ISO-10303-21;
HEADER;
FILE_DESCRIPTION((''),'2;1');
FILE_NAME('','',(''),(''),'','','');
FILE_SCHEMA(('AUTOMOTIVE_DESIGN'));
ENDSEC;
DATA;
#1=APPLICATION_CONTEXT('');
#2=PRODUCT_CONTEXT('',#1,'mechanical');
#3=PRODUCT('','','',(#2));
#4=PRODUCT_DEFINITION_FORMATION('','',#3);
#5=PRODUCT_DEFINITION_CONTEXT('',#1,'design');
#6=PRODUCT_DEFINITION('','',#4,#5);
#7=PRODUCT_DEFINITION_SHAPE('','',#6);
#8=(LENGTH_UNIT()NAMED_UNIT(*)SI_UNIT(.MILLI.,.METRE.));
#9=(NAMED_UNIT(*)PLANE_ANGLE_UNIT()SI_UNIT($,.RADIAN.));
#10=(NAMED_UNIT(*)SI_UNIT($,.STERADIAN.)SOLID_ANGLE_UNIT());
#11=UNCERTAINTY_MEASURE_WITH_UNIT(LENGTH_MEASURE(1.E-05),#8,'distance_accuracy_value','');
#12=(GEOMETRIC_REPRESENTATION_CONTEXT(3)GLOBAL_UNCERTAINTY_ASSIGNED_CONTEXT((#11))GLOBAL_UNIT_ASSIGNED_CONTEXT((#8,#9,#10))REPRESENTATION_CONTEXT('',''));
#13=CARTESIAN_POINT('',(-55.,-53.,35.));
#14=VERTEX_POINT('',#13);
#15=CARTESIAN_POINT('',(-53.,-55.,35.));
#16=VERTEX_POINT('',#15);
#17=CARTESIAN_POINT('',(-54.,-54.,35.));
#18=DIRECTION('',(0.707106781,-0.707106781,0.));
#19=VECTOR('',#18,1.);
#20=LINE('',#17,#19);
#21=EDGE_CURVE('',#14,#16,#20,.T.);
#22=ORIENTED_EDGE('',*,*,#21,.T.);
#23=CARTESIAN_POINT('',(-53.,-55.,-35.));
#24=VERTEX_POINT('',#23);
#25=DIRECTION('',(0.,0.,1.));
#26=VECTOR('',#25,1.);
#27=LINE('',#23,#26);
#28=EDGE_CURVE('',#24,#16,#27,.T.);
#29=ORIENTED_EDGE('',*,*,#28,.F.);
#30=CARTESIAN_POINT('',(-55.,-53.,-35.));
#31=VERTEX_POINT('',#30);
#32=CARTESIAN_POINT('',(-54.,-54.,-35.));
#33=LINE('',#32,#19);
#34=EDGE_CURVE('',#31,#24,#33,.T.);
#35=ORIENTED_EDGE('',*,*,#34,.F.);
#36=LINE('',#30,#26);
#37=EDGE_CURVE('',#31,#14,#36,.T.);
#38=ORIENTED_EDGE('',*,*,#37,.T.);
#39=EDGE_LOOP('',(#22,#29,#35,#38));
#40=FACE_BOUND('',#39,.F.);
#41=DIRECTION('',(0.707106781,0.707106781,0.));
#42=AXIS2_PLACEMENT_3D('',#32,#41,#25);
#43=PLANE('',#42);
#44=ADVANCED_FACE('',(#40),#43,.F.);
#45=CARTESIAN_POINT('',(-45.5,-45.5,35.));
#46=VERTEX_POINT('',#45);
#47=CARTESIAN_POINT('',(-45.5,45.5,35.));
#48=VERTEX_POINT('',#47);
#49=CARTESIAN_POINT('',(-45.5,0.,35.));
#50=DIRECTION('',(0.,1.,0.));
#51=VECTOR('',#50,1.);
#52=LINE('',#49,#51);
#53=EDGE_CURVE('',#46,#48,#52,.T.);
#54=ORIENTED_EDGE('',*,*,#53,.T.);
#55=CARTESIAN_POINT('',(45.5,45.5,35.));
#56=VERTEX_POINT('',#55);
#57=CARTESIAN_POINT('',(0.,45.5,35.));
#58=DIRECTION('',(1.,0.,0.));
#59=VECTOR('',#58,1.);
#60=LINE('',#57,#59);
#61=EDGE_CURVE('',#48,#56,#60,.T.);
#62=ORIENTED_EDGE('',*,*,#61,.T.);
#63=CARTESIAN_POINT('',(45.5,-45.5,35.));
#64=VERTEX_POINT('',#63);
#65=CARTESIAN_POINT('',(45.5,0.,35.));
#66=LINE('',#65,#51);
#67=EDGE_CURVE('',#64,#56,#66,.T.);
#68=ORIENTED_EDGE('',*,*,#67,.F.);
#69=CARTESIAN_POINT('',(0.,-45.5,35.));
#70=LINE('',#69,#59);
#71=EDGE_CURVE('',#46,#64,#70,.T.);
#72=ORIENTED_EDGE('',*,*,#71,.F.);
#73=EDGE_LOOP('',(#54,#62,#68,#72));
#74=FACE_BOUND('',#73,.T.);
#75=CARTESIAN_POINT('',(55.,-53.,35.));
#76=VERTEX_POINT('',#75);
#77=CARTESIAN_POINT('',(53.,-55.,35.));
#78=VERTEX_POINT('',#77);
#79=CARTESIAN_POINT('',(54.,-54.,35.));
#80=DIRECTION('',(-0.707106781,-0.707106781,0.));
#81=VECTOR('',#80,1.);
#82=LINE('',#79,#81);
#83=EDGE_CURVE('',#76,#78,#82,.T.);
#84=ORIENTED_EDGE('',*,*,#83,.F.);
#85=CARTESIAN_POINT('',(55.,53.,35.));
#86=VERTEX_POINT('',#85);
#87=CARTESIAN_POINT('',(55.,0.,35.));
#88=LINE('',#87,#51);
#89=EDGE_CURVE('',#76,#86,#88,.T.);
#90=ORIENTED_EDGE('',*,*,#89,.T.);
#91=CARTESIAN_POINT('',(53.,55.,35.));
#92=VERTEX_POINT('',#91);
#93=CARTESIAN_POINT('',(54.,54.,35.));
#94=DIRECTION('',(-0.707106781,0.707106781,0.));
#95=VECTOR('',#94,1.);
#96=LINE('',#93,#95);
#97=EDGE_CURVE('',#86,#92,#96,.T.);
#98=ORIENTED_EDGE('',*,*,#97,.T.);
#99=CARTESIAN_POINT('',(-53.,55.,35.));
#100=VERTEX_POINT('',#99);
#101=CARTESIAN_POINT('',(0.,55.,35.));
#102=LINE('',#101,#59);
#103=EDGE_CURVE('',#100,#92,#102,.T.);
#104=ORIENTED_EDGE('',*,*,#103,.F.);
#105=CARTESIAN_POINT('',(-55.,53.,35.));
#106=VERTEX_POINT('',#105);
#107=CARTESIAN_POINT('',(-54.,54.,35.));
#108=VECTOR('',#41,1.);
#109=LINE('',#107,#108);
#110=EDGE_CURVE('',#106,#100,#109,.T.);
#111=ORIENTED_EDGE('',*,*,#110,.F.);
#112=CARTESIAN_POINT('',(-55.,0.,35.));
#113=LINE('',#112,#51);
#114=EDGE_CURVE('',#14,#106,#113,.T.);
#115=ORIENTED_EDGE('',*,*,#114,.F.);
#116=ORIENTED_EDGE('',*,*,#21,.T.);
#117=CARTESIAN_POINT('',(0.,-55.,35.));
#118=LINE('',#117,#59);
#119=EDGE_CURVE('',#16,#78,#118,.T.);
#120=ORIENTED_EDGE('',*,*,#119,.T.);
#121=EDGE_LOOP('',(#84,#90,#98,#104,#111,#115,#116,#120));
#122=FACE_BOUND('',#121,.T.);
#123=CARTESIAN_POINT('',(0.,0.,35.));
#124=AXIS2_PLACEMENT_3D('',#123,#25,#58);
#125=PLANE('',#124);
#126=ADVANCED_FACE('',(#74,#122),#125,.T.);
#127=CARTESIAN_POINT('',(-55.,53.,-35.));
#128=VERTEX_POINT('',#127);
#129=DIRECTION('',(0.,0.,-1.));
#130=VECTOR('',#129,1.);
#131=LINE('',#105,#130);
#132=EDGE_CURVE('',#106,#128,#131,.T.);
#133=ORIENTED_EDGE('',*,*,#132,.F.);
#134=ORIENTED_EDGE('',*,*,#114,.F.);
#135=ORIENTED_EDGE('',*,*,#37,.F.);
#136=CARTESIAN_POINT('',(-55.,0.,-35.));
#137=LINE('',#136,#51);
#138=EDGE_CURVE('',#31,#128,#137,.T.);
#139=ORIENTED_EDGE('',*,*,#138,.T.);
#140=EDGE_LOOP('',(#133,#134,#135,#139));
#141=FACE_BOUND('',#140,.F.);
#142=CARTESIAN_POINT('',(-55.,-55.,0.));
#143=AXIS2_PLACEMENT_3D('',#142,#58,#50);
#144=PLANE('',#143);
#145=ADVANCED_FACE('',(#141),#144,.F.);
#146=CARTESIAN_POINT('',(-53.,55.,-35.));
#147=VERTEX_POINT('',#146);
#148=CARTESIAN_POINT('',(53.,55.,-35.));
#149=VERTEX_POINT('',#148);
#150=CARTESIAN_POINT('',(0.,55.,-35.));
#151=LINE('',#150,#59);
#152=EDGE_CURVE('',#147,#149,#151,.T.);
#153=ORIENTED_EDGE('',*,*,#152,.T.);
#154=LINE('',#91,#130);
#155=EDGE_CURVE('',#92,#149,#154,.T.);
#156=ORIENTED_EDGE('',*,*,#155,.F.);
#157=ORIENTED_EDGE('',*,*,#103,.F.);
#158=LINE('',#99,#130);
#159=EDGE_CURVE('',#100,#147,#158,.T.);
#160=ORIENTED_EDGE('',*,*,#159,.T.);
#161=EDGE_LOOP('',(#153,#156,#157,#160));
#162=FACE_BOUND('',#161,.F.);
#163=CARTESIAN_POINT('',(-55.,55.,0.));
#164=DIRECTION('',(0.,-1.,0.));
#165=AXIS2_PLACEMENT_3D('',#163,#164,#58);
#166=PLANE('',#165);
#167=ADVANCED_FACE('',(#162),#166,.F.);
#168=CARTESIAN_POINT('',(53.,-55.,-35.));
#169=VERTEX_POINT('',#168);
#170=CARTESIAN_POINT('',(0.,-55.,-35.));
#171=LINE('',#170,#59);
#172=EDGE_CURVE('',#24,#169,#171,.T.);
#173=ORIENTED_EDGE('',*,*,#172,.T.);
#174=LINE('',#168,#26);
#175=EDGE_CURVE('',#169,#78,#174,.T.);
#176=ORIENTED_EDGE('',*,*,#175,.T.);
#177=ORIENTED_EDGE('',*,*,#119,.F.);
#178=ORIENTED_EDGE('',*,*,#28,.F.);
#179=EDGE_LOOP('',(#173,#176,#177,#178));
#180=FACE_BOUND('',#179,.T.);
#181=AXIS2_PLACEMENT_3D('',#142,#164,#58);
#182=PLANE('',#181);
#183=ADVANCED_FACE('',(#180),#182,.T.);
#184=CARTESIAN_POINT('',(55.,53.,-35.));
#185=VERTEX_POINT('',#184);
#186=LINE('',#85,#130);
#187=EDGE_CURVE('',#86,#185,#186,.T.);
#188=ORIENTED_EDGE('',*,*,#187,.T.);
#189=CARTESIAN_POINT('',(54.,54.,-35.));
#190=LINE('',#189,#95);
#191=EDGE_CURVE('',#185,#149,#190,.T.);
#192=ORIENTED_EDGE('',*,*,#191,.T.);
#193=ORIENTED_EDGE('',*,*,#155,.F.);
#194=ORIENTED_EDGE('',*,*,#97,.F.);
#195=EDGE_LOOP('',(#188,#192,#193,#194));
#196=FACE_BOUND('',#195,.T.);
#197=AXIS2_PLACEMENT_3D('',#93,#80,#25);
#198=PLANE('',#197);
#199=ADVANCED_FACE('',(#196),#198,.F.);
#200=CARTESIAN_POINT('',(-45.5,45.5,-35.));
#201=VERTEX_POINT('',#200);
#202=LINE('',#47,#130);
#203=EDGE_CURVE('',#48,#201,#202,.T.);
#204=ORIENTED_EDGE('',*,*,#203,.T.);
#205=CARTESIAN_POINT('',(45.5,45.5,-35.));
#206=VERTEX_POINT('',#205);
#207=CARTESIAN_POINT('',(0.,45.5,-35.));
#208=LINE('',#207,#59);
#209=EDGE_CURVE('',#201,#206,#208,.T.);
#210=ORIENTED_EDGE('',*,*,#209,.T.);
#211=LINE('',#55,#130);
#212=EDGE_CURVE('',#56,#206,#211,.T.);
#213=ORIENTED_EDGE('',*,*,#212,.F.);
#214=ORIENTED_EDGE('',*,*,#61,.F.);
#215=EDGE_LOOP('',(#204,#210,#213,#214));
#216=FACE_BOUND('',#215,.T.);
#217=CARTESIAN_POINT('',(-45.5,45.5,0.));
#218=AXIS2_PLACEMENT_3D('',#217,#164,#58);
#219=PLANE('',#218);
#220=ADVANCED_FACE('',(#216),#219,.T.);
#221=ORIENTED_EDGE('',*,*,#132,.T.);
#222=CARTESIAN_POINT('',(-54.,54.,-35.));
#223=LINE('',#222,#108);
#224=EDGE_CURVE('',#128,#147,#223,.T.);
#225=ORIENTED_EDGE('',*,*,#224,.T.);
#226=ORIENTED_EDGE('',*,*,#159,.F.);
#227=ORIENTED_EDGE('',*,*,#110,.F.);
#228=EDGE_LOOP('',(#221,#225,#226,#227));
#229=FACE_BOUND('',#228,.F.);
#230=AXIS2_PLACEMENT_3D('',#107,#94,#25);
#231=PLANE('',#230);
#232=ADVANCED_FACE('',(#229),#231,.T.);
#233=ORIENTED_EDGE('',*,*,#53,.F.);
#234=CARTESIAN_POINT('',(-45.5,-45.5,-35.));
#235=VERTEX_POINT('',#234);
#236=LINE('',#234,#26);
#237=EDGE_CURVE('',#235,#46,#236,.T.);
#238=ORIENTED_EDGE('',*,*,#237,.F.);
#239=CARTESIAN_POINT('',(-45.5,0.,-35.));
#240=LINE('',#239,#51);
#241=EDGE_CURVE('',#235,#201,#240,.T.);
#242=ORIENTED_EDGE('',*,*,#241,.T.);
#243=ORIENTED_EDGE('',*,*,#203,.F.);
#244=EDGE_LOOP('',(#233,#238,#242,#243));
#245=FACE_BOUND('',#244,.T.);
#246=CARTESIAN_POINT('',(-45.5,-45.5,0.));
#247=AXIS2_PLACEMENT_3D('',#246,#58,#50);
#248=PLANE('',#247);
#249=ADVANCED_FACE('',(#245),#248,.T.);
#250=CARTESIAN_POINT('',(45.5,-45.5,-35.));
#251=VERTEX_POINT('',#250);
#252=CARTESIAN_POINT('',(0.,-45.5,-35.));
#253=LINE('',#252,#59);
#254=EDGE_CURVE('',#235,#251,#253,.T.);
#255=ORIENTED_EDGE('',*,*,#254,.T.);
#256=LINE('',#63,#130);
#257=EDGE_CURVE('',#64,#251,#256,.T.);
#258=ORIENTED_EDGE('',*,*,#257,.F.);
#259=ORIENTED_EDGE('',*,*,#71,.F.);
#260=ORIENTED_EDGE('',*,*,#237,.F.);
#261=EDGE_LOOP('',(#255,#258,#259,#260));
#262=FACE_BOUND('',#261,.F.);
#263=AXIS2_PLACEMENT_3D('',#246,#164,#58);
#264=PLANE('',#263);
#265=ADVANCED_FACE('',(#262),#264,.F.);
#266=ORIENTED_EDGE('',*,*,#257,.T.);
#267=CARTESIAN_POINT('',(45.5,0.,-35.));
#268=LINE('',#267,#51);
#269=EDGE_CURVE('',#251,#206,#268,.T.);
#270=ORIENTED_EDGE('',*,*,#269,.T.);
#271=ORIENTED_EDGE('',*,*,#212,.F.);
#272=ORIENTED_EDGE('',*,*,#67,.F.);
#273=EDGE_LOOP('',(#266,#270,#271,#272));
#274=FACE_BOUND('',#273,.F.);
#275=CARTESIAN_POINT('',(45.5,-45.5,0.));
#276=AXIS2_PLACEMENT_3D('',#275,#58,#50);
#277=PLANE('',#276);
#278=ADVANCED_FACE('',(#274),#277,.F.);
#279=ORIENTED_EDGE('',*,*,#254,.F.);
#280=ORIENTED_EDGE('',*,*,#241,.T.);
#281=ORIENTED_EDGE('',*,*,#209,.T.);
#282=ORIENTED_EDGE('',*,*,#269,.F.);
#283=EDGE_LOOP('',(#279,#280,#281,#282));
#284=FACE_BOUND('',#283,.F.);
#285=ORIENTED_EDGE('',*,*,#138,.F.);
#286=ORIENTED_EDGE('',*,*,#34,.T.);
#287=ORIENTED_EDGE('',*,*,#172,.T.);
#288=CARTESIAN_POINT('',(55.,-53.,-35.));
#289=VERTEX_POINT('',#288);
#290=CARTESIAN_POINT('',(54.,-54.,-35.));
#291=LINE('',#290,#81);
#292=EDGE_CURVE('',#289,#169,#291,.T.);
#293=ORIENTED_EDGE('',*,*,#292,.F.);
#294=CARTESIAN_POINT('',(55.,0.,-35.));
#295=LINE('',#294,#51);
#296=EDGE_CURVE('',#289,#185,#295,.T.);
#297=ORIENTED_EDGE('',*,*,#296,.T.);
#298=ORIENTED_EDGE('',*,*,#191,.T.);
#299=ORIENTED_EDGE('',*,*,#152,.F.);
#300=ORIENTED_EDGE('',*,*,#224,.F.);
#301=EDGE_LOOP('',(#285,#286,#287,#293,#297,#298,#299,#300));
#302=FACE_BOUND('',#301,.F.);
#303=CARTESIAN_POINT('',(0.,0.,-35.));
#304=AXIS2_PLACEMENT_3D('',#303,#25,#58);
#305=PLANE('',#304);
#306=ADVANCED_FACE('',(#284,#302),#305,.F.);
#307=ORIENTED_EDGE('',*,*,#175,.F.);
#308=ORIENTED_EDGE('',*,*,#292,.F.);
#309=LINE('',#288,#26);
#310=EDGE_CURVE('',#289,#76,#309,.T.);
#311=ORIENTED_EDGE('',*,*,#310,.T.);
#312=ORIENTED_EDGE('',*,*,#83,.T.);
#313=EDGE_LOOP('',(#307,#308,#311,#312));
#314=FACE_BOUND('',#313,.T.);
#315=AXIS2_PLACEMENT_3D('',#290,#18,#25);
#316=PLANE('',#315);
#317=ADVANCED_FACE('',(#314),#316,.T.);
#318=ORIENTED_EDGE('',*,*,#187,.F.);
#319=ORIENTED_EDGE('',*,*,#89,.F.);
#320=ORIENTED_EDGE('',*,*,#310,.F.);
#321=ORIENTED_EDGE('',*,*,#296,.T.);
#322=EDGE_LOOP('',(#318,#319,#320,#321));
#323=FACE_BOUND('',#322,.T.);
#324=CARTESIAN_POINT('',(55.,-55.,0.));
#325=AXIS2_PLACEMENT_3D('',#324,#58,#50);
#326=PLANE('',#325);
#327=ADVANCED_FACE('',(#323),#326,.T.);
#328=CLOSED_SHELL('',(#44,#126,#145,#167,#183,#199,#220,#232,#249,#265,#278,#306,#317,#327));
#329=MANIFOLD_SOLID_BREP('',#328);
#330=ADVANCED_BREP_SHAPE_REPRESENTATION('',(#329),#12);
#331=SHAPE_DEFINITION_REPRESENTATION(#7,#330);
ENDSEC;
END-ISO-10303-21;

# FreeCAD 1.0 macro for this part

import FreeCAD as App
import Part
import Sketcher
from FreeCAD import Vector


def edges_at(feature, points):
    """Names of the edges that pass closest to the given points."""
    edges = feature.Shape.Edges
    near = lambda p: min(range(len(edges)), key=lambda i: edges[i].distToShape(Part.Vertex(*p))[0])
    return sorted({f"Edge{near(p) + 1}" for p in points})


def add_polygon(sketch, points):
    """Adds a closed chain of lines whose ends are joined by coincident constraints."""
    first, n = sketch.GeometryCount, len(points)
    for a, b in zip(points, points[1:] + points[:1]):
        sketch.addGeometry(Part.LineSegment(App.Vector(*a, 0), App.Vector(*b, 0)), False)
    for i in range(n):
        sketch.addConstraint(Sketcher.Constraint("Coincident", first + i, 2, first + (i + 1) % n, 1))

doc = App.newDocument("Part")
body = doc.addObject("PartDesign::Body", "Body")

# Sketch on XY plane
sketch1 = doc.addObject("Sketcher::SketchObject", "Sketch")
body.addObject(sketch1)
sketch1.AttachmentSupport = (doc.XY_Plane, [""])
sketch1.MapMode = "FlatFace"
add_polygon(sketch1, [(-55, 55), (-55, -55), (55, -55), (55, 55)])  # lines 0-3
add_polygon(sketch1, [(45.5, -45.5), (-45.5, -45.5), (-45.5, 45.5), (45.5, 45.5)])  # lines 4-7
sketch1.addConstraint([
    Sketcher.Constraint("Vertical", 0),
    Sketcher.Constraint("Horizontal", 1),
    Sketcher.Constraint("Vertical", 2),
    Sketcher.Constraint("Horizontal", 3),
    Sketcher.Constraint("Horizontal", 4),
    Sketcher.Constraint("Vertical", 5),
    Sketcher.Constraint("Horizontal", 6),
    Sketcher.Constraint("Vertical", 7),
    Sketcher.Constraint("Symmetric", 0, 2, 2, 2, -1, 1),
    Sketcher.Constraint("Symmetric", 4, 2, 6, 2, -1, 1),
    Sketcher.Constraint("Equal", 3, 0),
    Sketcher.Constraint("Equal", 6, 5),
    Sketcher.Constraint("DistanceX", 1, 1, 1, 2, 110.0),
    Sketcher.Constraint("DistanceX", 4, 2, 4, 1, 91.0),
])
pad1 = doc.addObject("PartDesign::Pad", "Pad")
body.addObject(pad1)
pad1.Profile = sketch1
pad1.Length = 70
pad1.Midplane = True
doc.recompute()

chamfer = doc.addObject("PartDesign::Chamfer", "Chamfer")
body.addObject(chamfer)
chamfer.Base = (pad1, edges_at(pad1, [
    (-55, -55, 0),
    (55, -55, 0),
    (55, 55, 0),
    (-55, 55, 0),
]))
chamfer.Size = 2

doc.recompute()
